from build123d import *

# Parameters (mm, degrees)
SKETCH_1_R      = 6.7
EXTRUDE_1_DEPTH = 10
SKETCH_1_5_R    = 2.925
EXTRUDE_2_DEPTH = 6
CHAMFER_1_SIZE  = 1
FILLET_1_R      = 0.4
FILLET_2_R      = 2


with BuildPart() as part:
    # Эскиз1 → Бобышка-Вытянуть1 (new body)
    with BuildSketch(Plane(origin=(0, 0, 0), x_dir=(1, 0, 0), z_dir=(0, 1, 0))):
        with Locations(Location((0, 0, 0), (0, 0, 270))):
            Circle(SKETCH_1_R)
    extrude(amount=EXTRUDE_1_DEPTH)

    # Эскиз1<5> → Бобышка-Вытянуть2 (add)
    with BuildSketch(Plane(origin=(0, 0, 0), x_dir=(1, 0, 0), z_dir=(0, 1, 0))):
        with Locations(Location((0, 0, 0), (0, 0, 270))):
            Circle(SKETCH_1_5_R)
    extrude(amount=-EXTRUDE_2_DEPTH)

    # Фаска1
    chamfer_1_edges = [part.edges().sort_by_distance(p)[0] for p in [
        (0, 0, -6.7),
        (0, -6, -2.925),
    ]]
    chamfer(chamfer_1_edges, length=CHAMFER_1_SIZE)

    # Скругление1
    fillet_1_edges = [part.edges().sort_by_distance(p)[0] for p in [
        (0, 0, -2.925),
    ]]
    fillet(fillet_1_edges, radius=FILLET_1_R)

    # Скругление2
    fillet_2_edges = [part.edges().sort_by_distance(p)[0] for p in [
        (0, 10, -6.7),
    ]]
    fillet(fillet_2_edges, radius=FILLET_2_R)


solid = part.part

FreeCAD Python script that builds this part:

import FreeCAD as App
import Part
import Sketcher
Q = App.Units.Quantity


def edges_at(feature, points):
    """Names of the edges that pass closest to the given points."""
    edges = feature.Shape.Edges
    near = lambda p: min(range(len(edges)), key=lambda i: edges[i].distToShape(Part.Vertex(*p))[0])
    return sorted({f"Edge{near(p) + 1}" for p in points})

doc = App.newDocument("Part")
body = doc.addObject("PartDesign::Body", "Body")

sketch1 = body.newObject("Sketcher::SketchObject", "Sketch")
sketch1.AttachmentSupport = (doc.getObject("XZ_Plane"), [""])
sketch1.MapMode = "FlatFace"
sketch1.addGeometry(Part.Circle(App.Vector(0, 0, 0), App.Vector(0, 0, 1), 7), False)
sketch1.addConstraint(Sketcher.Constraint("Coincident", 0, 3, -1, 1))
sketch1.addConstraint(Sketcher.Constraint("Diameter", 0, Q("13.4 mm")))
pad1 = body.newObject("PartDesign::Pad", "Pad")
pad1.Profile = sketch1
pad1.Length = 10
pad1.Reversed = True

sketch2 = body.newObject("Sketcher::SketchObject", "Sketch001")
sketch2.AttachmentSupport = (doc.getObject("XZ_Plane"), [""])
sketch2.MapMode = "FlatFace"
sketch2.addGeometry(Part.Circle(App.Vector(0, 0, 0), App.Vector(0, 0, 1), 2.9), False)
sketch2.addConstraint(Sketcher.Constraint("Coincident", 0, 3, -1, 1))
sketch2.addConstraint(Sketcher.Constraint("Diameter", 0, Q("5.85 mm")))
pad2 = body.newObject("PartDesign::Pad", "Pad001")
pad2.Profile = sketch2
pad2.Length = 6
doc.recompute()

chamfer = body.newObject("PartDesign::Chamfer", "Chamfer")
chamfer.Base = (pad2, edges_at(pad2, [(0, 0, -6.7), (0, -6, -2.925)]))
chamfer.Size = 1
doc.recompute()

fillet = body.newObject("PartDesign::Fillet", "Fillet")
fillet.Base = (chamfer, edges_at(chamfer, [(0, 0, -2.925)]))
fillet.Radius = 0.4
doc.recompute()

fillet2 = body.newObject("PartDesign::Fillet", "Fillet001")
fillet2.Base = (fillet, edges_at(fillet, [(0, 10, -6.7)]))
fillet2.Radius = 2

doc.recompute()
